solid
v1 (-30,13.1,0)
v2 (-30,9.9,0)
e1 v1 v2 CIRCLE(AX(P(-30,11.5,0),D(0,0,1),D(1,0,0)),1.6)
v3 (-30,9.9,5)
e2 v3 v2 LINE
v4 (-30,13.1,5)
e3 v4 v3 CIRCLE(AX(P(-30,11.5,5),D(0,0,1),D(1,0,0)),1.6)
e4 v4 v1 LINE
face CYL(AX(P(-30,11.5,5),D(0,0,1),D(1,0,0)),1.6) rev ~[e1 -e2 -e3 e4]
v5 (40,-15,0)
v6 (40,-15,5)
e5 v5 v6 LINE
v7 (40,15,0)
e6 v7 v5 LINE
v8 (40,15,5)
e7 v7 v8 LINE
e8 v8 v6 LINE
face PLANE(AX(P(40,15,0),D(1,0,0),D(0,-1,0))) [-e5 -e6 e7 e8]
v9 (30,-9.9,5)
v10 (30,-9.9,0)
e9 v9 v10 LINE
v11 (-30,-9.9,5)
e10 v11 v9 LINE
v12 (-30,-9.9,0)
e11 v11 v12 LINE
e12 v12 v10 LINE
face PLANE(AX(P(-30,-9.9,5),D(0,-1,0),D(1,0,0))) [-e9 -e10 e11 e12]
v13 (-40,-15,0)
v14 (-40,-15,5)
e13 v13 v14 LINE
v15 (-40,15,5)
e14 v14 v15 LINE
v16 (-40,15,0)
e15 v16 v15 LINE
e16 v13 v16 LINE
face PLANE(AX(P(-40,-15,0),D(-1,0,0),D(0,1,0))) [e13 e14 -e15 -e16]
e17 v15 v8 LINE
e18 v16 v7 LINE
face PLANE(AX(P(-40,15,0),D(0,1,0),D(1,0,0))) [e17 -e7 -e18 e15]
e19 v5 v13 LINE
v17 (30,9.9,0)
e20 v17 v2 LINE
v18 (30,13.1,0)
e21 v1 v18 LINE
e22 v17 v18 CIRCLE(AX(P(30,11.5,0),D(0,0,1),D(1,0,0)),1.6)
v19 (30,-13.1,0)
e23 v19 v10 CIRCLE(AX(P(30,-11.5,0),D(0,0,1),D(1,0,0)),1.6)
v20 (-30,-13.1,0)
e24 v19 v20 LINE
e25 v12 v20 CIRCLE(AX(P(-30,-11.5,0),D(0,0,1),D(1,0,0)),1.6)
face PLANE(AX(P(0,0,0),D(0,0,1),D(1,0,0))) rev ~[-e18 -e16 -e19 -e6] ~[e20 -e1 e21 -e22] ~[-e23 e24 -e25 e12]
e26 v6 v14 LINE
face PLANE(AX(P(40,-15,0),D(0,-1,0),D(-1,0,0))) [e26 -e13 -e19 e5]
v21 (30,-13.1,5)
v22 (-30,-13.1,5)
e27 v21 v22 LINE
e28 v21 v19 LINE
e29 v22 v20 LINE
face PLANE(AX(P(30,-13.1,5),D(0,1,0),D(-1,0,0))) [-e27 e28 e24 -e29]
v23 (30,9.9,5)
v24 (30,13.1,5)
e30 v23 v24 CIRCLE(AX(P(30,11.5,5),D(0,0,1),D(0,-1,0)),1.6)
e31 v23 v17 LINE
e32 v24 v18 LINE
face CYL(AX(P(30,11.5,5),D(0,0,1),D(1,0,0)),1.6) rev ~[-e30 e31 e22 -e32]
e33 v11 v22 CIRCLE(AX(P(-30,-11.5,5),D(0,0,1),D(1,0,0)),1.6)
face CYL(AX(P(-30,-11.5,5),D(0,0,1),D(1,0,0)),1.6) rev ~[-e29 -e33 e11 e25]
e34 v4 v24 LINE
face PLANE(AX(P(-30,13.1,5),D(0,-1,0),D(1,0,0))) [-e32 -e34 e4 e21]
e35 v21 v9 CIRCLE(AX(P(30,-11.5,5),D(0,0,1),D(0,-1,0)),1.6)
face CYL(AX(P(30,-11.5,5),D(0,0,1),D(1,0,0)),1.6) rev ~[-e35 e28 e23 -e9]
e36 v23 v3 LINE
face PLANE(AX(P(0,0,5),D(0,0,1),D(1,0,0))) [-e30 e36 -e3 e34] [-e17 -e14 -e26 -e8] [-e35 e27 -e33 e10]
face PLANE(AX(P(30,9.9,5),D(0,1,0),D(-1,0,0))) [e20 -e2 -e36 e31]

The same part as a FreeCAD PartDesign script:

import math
import FreeCAD as App
import Part
import Sketcher
from FreeCAD import Vector


def add_polygon(sketch, points):
    """Adds a closed chain of lines whose ends are joined by coincident constraints."""
    first, n = sketch.GeometryCount, len(points)
    for a, b in zip(points, points[1:] + points[:1]):
        sketch.addGeometry(Part.LineSegment(App.Vector(*a, 0), App.Vector(*b, 0)), False)
    for i in range(n):
        sketch.addConstraint(Sketcher.Constraint("Coincident", first + i, 2, first + (i + 1) % n, 1))

doc = App.newDocument("Part")
body = doc.addObject("PartDesign::Body", "Body")

sketch1 = body.newObject("Sketcher::SketchObject", "Sketch")
sketch1.AttachmentSupport = (doc.getObject("XY_Plane"), [""])
sketch1.MapMode = "FlatFace"
add_polygon(sketch1, [(40, 15), (-40, 15), (-40, -15), (40, -15)])
sketch1.addConstraint(Sketcher.Constraint("Horizontal", 0))
sketch1.addConstraint(Sketcher.Constraint("Vertical", 1))
sketch1.addConstraint(Sketcher.Constraint("Horizontal", 2))
sketch1.addConstraint(Sketcher.Constraint("Vertical", 3))
sketch1.addConstraint(Sketcher.Constraint("Symmetric", 0, 2, 2, 2, -1, 1))
sketch1.addConstraint(Sketcher.Constraint("DistanceX", 0, 2, 0, 1, 80.0))
sketch1.addConstraint(Sketcher.Constraint("DistanceY", 1, 2, 1, 1, 30.0))
pad1 = body.newObject("PartDesign::Pad", "Pad")
pad1.Profile = sketch1
pad1.Length = 5

sketch2 = body.newObject("Sketcher::SketchObject", "Sketch001")
sketch2.AttachmentSupport = (doc.getObject("XY_Plane"), [""])
sketch2.MapMode = "FlatFace"
sketch2.AttachmentOffset = App.Placement(Vector(0, 0, 5), App.Rotation())
sketch2.addGeometry(Part.LineSegment(Vector(30, 13.1, 0), Vector(-30, 13.1, 0)), False)
sketch2.addGeometry(Part.ArcOfCircle(Part.Circle(Vector(-30, 11.5, 0), Vector(0, 0, 1), 1.6), math.radians(90), math.radians(270)), False)
sketch2.addGeometry(Part.LineSegment(Vector(-30, 9.9, 0), Vector(30, 9.9, 0)), False)
sketch2.addGeometry(Part.ArcOfCircle(Part.Circle(Vector(30, 11.5, 0), Vector(0, 0, 1), 1.6), math.radians(-90), math.radians(90)), False)
sketch2.addGeometry(Part.LineSegment(Vector(30, -9.9, 0), Vector(-30, -9.9, 0)), False)
sketch2.addGeometry(Part.ArcOfCircle(Part.Circle(Vector(-30, -11.5, 0), Vector(0, 0, 1), 1.6), math.radians(90), math.radians(270)), False)
sketch2.addGeometry(Part.LineSegment(Vector(-30, -13.1, 0), Vector(30, -13.1, 0)), False)
sketch2.addGeometry(Part.ArcOfCircle(Part.Circle(Vector(30, -11.5, 0), Vector(0, 0, 1), 1.6), math.radians(-90), math.radians(90)), False)
sketch2.addConstraint(Sketcher.Constraint("Tangent", 0, 2, 1, 1))
sketch2.addConstraint(Sketcher.Constraint("Tangent", 1, 2, 2, 1))
sketch2.addConstraint(Sketcher.Constraint("Tangent", 2, 2, 3, 1))
sketch2.addConstraint(Sketcher.Constraint("Tangent", 3, 2, 0, 1))
sketch2.addConstraint(Sketcher.Constraint("Tangent", 4, 2, 5, 1))
sketch2.addConstraint(Sketcher.Constraint("Tangent", 5, 2, 6, 1))
sketch2.addConstraint(Sketcher.Constraint("Tangent", 6, 2, 7, 1))
sketch2.addConstraint(Sketcher.Constraint("Tangent", 7, 2, 4, 1))
sketch2.addConstraint(Sketcher.Constraint("Horizontal", 0))
sketch2.addConstraint(Sketcher.Constraint("Horizontal", 2))
sketch2.addConstraint(Sketcher.Constraint("Horizontal", 4))
sketch2.addConstraint(Sketcher.Constraint("Horizontal", 6))
sketch2.addConstraint(Sketcher.Constraint("Equal", 3, 5))
sketch2.addConstraint(Sketcher.Constraint("Symmetric", 3, 3, 5, 3, -1, 1))
sketch2.addConstraint(Sketcher.Constraint("Vertical", 1, 3, 5, 3))
sketch2.addConstraint(Sketcher.Constraint("Vertical", 3, 3, 7, 3))
sketch2.addConstraint(Sketcher.Constraint("Radius", 1, 1.6))
sketch2.addConstraint(Sketcher.Constraint("DistanceX", 0, 2, 0, 1, 60.0))
sketch2.addConstraint(Sketcher.Constraint("DistanceY", 5, 3, 1, 3, 23.0))
pocket1 = body.newObject("PartDesign::Pocket", "Pocket")
pocket1.Profile = sketch2
pocket1.Type = "ThroughAll"

doc.recompute()
